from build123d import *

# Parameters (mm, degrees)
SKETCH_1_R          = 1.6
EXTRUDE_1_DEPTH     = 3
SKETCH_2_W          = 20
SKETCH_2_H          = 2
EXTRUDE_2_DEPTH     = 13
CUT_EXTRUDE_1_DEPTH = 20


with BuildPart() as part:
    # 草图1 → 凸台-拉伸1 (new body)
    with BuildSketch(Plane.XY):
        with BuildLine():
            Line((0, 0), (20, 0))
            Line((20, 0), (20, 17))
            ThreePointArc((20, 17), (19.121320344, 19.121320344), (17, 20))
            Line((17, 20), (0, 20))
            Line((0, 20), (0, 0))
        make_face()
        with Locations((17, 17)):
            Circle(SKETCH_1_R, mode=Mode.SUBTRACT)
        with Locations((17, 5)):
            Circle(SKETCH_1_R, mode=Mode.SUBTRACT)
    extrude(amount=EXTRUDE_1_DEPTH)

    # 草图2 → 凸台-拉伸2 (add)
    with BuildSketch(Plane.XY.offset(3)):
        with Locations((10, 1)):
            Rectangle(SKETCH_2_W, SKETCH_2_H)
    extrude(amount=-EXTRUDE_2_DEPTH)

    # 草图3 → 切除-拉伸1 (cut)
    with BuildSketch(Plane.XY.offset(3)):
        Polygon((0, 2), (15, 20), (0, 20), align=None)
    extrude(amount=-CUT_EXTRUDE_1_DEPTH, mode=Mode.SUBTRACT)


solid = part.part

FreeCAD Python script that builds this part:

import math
import FreeCAD as App
import Part
import Sketcher
Q = App.Units.Quantity


def add_polygon(sketch, points):
    """Adds a closed chain of lines whose ends are joined by coincident constraints."""
    first, n = sketch.GeometryCount, len(points)
    for a, b in zip(points, points[1:] + points[:1]):
        sketch.addGeometry(Part.LineSegment(App.Vector(*a, 0), App.Vector(*b, 0)), False)
    for i in range(n):
        sketch.addConstraint(Sketcher.Constraint("Coincident", first + i, 2, first + (i + 1) % n, 1))

doc = App.newDocument("Part")
body = doc.addObject("PartDesign::Body", "Body")

sketch1 = body.newObject("Sketcher::SketchObject", "Sketch")
sketch1.AttachmentSupport = (doc.getObject("XY_Plane"), [""])
sketch1.MapMode = "FlatFace"
sketch1.addGeometry([
    Part.LineSegment(App.Vector(0, 0, 0), App.Vector(20, 0, 0)),
    Part.LineSegment(App.Vector(20, 0, 0), App.Vector(20, 17, 0)),
    Part.ArcOfCircle(Part.Circle(App.Vector(17, 17, 0), App.Vector(0, 0, 1), 3), math.radians(0), math.radians(90)),
    Part.LineSegment(App.Vector(17, 20, 0), App.Vector(0, 20, 0)),
    Part.LineSegment(App.Vector(0, 20, 0), App.Vector(0, 0, 0)),
    Part.Circle(App.Vector(17, 5, 0), App.Vector(0, 0, 1), 1.6),
    Part.Circle(App.Vector(17, 17, 0), App.Vector(0, 0, 1), 1.6),
], False)
sketch1.addConstraint([
    Sketcher.Constraint("Coincident", 0, 2, 1, 1),
    Sketcher.Constraint("Tangent", 1, 2, 2, 1),
    Sketcher.Constraint("Tangent", 2, 2, 3, 1),
    Sketcher.Constraint("Coincident", 3, 2, 4, 1),
    Sketcher.Constraint("Coincident", 4, 2, 0, 1),
    Sketcher.Constraint("Horizontal", 0),
    Sketcher.Constraint("Vertical", 1),
    Sketcher.Constraint("Horizontal", 3),
    Sketcher.Constraint("Vertical", 4),
    Sketcher.Constraint("Coincident", 4, 2, -1, 1),
    Sketcher.Constraint("Coincident", 6, 3, 2, 3),
    Sketcher.Constraint("Equal", 5, 6),
    Sketcher.Constraint("Vertical", 2, 3, 5, 3),
    Sketcher.Constraint("Equal", 3, 1),
    Sketcher.Constraint("Radius", 2, Q("3 mm")),
    Sketcher.Constraint("Diameter", 5, Q("3.2 mm")),
    Sketcher.Constraint("DistanceX", 0, 1, 0, 2, Q("20 mm")),
    Sketcher.Constraint("DistanceY", -1, 1, 5, 3, Q("5 mm")),
])
pad1 = body.newObject("PartDesign::Pad", "Pad")
pad1.Profile = sketch1
pad1.Length = 3

sketch2 = body.newObject("Sketcher::SketchObject", "Sketch001")
sketch2.AttachmentSupport = (doc.getObject("XY_Plane"), [""])
sketch2.MapMode = "FlatFace"
sketch2.AttachmentOffset = App.Placement(App.Vector(0, 0, 3), App.Rotation())
add_polygon(sketch2, [(0, 2), (0, 0), (20, 0), (20, 2)])
sketch2.addConstraint([
    Sketcher.Constraint("Vertical", 0),
    Sketcher.Constraint("Horizontal", 1),
    Sketcher.Constraint("Vertical", 2),
    Sketcher.Constraint("Horizontal", 3),
    Sketcher.Constraint("Coincident", 0, 2, -1, 1),
    Sketcher.Constraint("DistanceX", 1, 1, 1, 2, Q("20 mm")),
    Sketcher.Constraint("DistanceY", 0, 2, 0, 1, Q("2 mm")),
])
pad2 = body.newObject("PartDesign::Pad", "Pad001")
pad2.Profile = sketch2
pad2.Length = 13
pad2.Reversed = True

sketch3 = body.newObject("Sketcher::SketchObject", "Sketch002")
sketch3.AttachmentSupport = (doc.getObject("XY_Plane"), [""])
sketch3.MapMode = "FlatFace"
sketch3.AttachmentOffset = App.Placement(App.Vector(0, 0, 3), App.Rotation())
add_polygon(sketch3, [(0, 2), (15, 20), (0, 20)])
sketch3.addConstraint([
    Sketcher.Constraint("Horizontal", 1),
    Sketcher.Constraint("Vertical", 2),
    Sketcher.Constraint("PointOnObject", 1, 2, -2),
    Sketcher.Constraint("DistanceX", 1, 2, 1, 1, Q("15 mm")),
    Sketcher.Constraint("DistanceY", 2, 2, 2, 1, Q("18 mm")),
    Sketcher.Constraint("DistanceY", -1, 1, 0, 2, Q("20 mm")),
])
pocket1 = body.newObject("PartDesign::Pocket", "Pocket")
pocket1.Profile = sketch3
pocket1.Length = 20

doc.recompute()
